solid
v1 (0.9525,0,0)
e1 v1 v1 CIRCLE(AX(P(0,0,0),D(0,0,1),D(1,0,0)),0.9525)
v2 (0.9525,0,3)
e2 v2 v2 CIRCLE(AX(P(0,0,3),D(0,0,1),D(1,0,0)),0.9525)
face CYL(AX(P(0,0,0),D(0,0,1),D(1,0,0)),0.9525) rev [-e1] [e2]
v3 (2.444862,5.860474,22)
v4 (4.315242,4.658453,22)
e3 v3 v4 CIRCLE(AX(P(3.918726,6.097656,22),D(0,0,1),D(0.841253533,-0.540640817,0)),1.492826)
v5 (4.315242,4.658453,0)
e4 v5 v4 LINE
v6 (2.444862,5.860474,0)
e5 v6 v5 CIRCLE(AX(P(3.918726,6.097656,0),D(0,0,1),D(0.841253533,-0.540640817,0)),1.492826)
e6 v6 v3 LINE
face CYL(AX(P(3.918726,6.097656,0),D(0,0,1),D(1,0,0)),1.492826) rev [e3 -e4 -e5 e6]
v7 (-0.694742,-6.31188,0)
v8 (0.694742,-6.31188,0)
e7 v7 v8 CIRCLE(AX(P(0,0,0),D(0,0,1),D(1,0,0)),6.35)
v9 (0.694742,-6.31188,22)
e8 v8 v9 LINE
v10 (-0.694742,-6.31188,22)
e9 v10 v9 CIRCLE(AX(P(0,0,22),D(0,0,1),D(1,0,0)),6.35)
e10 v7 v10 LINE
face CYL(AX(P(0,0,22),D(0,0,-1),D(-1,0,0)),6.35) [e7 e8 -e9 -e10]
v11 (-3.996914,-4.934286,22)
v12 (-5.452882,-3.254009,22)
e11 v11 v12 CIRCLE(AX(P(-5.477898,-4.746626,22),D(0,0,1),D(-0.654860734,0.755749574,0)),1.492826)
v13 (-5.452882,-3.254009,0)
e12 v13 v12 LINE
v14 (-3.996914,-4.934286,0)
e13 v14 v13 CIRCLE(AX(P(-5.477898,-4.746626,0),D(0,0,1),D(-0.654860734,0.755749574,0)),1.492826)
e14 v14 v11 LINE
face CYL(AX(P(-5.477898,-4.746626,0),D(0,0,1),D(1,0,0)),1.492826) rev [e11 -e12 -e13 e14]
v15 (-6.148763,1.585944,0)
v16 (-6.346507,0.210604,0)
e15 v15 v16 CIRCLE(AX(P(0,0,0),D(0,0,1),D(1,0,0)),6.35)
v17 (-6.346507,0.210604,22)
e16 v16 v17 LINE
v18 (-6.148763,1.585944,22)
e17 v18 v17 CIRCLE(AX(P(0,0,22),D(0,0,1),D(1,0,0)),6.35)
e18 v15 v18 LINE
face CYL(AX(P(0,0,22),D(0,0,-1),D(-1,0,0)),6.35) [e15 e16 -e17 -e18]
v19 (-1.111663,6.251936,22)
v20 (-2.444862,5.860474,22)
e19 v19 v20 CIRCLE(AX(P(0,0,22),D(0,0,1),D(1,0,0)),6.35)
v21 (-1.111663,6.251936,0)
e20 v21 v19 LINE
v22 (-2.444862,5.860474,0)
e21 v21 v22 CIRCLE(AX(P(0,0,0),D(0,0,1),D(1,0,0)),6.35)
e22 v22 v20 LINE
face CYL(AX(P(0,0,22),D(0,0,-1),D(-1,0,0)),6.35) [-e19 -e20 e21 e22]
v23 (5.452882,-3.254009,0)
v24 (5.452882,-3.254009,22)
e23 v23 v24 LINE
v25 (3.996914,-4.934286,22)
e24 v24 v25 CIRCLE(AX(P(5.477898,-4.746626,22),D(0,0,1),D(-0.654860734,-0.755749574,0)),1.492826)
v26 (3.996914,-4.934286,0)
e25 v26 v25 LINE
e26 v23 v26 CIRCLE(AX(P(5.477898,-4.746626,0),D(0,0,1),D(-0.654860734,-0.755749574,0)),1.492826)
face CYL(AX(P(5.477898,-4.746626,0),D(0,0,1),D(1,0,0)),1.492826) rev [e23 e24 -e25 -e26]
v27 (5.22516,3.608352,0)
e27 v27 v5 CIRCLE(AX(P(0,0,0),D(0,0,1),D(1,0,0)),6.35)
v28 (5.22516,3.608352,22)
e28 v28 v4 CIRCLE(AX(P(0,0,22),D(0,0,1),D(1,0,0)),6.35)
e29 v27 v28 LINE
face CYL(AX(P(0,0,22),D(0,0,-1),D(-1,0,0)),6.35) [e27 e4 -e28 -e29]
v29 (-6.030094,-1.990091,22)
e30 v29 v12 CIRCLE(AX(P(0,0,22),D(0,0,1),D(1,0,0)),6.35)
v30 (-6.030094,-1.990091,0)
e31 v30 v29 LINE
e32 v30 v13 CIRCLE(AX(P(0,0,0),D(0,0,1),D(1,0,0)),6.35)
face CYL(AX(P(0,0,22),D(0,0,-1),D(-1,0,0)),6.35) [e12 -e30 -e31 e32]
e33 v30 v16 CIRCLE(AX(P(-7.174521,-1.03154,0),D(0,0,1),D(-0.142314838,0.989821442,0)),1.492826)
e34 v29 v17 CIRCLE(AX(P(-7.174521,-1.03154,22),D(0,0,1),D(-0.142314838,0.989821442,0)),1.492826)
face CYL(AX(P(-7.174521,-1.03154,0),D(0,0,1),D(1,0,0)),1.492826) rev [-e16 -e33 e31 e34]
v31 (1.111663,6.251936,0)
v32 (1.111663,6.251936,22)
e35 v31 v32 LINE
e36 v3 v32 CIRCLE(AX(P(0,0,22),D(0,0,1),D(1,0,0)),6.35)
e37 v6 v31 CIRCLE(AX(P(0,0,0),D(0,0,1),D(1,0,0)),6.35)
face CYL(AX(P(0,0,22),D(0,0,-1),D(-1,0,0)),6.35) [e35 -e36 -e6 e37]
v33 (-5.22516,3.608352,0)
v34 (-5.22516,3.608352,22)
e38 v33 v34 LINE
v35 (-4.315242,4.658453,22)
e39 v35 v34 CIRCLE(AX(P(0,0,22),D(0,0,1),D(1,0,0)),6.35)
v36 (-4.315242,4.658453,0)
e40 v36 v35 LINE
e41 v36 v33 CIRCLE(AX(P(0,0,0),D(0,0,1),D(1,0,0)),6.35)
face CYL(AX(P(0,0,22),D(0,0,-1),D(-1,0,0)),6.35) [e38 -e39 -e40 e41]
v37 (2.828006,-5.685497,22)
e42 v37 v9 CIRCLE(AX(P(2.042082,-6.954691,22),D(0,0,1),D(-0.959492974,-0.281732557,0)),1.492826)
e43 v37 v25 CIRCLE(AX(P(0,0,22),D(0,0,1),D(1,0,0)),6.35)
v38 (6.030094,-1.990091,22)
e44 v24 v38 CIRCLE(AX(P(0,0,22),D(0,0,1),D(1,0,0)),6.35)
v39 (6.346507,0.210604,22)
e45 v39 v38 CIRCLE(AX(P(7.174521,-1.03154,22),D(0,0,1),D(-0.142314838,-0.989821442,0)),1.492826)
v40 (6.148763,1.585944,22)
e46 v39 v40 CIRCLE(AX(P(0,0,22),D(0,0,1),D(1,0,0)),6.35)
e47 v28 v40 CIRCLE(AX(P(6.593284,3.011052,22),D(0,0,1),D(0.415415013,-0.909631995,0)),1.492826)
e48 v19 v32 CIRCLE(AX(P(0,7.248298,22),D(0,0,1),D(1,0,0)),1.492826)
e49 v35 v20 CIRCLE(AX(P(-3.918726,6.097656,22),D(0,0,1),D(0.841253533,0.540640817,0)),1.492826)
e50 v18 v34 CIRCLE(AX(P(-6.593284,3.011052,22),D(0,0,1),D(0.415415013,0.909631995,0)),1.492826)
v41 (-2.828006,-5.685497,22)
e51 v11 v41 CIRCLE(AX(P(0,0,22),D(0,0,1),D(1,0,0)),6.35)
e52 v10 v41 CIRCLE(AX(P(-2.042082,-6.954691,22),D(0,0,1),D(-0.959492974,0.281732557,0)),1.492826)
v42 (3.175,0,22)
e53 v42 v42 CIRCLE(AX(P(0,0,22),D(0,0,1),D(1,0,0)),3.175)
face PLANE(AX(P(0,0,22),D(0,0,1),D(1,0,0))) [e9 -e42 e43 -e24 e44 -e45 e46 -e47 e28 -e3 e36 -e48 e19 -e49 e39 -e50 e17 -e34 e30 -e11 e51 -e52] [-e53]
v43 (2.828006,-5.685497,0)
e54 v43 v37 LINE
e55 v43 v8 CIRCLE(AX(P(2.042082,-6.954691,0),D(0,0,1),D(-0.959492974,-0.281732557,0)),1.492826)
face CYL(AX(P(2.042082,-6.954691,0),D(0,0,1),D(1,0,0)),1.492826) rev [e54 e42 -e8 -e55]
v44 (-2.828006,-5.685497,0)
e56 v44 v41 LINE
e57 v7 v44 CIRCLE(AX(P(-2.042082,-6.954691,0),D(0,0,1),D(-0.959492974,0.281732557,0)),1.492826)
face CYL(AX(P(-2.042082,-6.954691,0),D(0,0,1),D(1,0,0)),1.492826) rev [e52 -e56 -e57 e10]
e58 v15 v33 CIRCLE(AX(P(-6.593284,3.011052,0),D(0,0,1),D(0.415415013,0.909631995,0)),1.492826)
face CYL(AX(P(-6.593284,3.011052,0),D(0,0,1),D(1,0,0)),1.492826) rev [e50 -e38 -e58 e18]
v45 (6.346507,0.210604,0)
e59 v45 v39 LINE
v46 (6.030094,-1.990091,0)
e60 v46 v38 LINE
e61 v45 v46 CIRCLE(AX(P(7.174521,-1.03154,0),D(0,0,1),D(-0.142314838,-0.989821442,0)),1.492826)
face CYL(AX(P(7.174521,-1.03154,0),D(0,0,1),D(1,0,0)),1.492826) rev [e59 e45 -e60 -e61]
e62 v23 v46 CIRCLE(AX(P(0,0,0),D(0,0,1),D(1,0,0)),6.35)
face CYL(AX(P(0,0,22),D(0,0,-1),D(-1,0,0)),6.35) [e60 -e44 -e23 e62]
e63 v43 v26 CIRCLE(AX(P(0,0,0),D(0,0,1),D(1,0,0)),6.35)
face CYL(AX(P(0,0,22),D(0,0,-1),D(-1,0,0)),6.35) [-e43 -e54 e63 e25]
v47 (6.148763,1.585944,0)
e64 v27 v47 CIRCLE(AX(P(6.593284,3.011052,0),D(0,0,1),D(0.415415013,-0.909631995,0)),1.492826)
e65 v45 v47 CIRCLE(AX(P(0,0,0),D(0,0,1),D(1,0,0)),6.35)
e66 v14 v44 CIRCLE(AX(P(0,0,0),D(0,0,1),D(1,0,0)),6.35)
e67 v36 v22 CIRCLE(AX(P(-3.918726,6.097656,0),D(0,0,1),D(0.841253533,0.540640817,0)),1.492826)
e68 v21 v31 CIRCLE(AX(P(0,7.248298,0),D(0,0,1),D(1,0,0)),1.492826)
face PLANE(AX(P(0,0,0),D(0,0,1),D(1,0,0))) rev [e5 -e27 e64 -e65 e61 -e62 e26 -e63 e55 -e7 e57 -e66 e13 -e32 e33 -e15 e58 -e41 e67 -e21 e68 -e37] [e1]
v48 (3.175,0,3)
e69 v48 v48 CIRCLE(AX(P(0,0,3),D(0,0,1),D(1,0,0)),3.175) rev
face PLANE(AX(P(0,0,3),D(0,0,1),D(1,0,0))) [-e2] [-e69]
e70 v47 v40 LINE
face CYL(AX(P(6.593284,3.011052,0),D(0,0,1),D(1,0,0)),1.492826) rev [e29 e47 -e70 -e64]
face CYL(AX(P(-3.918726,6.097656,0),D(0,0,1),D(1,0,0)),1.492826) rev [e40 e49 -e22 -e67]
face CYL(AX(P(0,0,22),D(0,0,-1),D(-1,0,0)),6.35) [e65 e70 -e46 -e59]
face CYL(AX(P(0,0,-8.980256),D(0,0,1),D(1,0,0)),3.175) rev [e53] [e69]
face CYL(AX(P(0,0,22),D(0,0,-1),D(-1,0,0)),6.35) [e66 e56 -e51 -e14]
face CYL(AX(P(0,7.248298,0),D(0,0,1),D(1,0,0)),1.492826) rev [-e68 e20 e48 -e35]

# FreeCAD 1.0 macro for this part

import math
import FreeCAD as App
import Part
import Sketcher

V = App.Vector
Q = App.Units.Quantity

doc = App.newDocument("Part")
body = doc.addObject("PartDesign::Body", "Body")

sketch1 = body.newObject("Sketcher::SketchObject", "Sketch")
sketch1.AttachmentSupport = (doc.getObject("XY_Plane"), [""])
sketch1.MapMode = "FlatFace"
sketch1.addGeometry(Part.Circle(V(0, 0, 0), V(0, 0, 1), 6), False)
sketch1.addConstraint(Sketcher.Constraint("Coincident", 0, 3, -1, 1))
sketch1.addConstraint(Sketcher.Constraint("Diameter", 0, Q("12.7 mm")))
pad1 = body.newObject("PartDesign::Pad", "Pad")
pad1.Profile = sketch1
pad1.Length = 22

sketch2 = body.newObject("Sketcher::SketchObject", "Sketch001")
sketch2.AttachmentSupport = (doc.getObject("XY_Plane"), [""])
sketch2.MapMode = "FlatFace"
sketch2.AttachmentOffset = App.Placement(V(0, 0, 22), App.Rotation())
sketch2.addGeometry(Part.ArcOfCircle(Part.Circle(V(0, 7.2, 0), V(0, 0, 1), 1.5), math.radians(-138), math.radians(-42)), False)
sketch2.addGeometry(Part.ArcOfCircle(Part.Circle(V(0, 0, 0), V(0, 0, 1), 6.3), math.radians(80), math.radians(100)), False)
sketch2.addConstraint(Sketcher.Constraint("Coincident", 0, 1, 1, 2))
sketch2.addConstraint(Sketcher.Constraint("Coincident", 1, 1, 0, 2))
sketch2.addConstraint(Sketcher.Constraint("Coincident", 1, 3, -1, 1))
sketch2.addConstraint(Sketcher.Constraint("PointOnObject", 0, 3, -2))
sketch2.addConstraint(Sketcher.Constraint("Radius", 1, Q("6.35 mm")))
sketch2.addConstraint(Sketcher.Constraint("Radius", 0, Q("1.492826 mm")))
sketch2.addConstraint(Sketcher.Constraint("DistanceY", -1, 1, 0, 3, Q("7.248298 mm")))
pocket1 = body.newObject("PartDesign::Pocket", "Pocket")
pocket1.Profile = sketch2
pocket1.Type = "ThroughAll"
doc.recompute()

polarpattern = body.newObject("PartDesign::PolarPattern", "PolarPattern")
polarpattern.Originals = [pocket1]
polarpattern.Axis = (doc.getObject("Z_Axis"), [""])
polarpattern.Angle = 360
polarpattern.Occurrences = 11
body.Tip = polarpattern

sketch3 = body.newObject("Sketcher::SketchObject", "Sketch002")
sketch3.AttachmentSupport = (doc.getObject("XY_Plane"), [""])
sketch3.MapMode = "FlatFace"
sketch3.AttachmentOffset = App.Placement(V(0, 0, 22), App.Rotation())
sketch3.addGeometry(Part.Circle(V(0, 0, 0), V(0, 0, 1), 3.2), False)
sketch3.addConstraint(Sketcher.Constraint("Coincident", 0, 3, -1, 1))
sketch3.addConstraint(Sketcher.Constraint("Diameter", 0, Q("6.35 mm")))
pocket2 = body.newObject("PartDesign::Pocket", "Pocket001")
pocket2.Profile = sketch3
pocket2.Length = 19

sketch4 = body.newObject("Sketcher::SketchObject", "Sketch003")
sketch4.AttachmentSupport = (doc.getObject("XY_Plane"), [""])
sketch4.MapMode = "FlatFace"
sketch4.AttachmentOffset = App.Placement(V(0, 0, 3), App.Rotation())
sketch4.addGeometry(Part.Circle(V(0, 0, 0), V(0, 0, 1), 1), False)
sketch4.addConstraint(Sketcher.Constraint("Coincident", 0, 3, -1, 1))
sketch4.addConstraint(Sketcher.Constraint("Diameter", 0, Q("1.905 mm")))
pocket3 = body.newObject("PartDesign::Pocket", "Pocket002")
pocket3.Profile = sketch4
pocket3.Type = "ThroughAll"

doc.recompute()
